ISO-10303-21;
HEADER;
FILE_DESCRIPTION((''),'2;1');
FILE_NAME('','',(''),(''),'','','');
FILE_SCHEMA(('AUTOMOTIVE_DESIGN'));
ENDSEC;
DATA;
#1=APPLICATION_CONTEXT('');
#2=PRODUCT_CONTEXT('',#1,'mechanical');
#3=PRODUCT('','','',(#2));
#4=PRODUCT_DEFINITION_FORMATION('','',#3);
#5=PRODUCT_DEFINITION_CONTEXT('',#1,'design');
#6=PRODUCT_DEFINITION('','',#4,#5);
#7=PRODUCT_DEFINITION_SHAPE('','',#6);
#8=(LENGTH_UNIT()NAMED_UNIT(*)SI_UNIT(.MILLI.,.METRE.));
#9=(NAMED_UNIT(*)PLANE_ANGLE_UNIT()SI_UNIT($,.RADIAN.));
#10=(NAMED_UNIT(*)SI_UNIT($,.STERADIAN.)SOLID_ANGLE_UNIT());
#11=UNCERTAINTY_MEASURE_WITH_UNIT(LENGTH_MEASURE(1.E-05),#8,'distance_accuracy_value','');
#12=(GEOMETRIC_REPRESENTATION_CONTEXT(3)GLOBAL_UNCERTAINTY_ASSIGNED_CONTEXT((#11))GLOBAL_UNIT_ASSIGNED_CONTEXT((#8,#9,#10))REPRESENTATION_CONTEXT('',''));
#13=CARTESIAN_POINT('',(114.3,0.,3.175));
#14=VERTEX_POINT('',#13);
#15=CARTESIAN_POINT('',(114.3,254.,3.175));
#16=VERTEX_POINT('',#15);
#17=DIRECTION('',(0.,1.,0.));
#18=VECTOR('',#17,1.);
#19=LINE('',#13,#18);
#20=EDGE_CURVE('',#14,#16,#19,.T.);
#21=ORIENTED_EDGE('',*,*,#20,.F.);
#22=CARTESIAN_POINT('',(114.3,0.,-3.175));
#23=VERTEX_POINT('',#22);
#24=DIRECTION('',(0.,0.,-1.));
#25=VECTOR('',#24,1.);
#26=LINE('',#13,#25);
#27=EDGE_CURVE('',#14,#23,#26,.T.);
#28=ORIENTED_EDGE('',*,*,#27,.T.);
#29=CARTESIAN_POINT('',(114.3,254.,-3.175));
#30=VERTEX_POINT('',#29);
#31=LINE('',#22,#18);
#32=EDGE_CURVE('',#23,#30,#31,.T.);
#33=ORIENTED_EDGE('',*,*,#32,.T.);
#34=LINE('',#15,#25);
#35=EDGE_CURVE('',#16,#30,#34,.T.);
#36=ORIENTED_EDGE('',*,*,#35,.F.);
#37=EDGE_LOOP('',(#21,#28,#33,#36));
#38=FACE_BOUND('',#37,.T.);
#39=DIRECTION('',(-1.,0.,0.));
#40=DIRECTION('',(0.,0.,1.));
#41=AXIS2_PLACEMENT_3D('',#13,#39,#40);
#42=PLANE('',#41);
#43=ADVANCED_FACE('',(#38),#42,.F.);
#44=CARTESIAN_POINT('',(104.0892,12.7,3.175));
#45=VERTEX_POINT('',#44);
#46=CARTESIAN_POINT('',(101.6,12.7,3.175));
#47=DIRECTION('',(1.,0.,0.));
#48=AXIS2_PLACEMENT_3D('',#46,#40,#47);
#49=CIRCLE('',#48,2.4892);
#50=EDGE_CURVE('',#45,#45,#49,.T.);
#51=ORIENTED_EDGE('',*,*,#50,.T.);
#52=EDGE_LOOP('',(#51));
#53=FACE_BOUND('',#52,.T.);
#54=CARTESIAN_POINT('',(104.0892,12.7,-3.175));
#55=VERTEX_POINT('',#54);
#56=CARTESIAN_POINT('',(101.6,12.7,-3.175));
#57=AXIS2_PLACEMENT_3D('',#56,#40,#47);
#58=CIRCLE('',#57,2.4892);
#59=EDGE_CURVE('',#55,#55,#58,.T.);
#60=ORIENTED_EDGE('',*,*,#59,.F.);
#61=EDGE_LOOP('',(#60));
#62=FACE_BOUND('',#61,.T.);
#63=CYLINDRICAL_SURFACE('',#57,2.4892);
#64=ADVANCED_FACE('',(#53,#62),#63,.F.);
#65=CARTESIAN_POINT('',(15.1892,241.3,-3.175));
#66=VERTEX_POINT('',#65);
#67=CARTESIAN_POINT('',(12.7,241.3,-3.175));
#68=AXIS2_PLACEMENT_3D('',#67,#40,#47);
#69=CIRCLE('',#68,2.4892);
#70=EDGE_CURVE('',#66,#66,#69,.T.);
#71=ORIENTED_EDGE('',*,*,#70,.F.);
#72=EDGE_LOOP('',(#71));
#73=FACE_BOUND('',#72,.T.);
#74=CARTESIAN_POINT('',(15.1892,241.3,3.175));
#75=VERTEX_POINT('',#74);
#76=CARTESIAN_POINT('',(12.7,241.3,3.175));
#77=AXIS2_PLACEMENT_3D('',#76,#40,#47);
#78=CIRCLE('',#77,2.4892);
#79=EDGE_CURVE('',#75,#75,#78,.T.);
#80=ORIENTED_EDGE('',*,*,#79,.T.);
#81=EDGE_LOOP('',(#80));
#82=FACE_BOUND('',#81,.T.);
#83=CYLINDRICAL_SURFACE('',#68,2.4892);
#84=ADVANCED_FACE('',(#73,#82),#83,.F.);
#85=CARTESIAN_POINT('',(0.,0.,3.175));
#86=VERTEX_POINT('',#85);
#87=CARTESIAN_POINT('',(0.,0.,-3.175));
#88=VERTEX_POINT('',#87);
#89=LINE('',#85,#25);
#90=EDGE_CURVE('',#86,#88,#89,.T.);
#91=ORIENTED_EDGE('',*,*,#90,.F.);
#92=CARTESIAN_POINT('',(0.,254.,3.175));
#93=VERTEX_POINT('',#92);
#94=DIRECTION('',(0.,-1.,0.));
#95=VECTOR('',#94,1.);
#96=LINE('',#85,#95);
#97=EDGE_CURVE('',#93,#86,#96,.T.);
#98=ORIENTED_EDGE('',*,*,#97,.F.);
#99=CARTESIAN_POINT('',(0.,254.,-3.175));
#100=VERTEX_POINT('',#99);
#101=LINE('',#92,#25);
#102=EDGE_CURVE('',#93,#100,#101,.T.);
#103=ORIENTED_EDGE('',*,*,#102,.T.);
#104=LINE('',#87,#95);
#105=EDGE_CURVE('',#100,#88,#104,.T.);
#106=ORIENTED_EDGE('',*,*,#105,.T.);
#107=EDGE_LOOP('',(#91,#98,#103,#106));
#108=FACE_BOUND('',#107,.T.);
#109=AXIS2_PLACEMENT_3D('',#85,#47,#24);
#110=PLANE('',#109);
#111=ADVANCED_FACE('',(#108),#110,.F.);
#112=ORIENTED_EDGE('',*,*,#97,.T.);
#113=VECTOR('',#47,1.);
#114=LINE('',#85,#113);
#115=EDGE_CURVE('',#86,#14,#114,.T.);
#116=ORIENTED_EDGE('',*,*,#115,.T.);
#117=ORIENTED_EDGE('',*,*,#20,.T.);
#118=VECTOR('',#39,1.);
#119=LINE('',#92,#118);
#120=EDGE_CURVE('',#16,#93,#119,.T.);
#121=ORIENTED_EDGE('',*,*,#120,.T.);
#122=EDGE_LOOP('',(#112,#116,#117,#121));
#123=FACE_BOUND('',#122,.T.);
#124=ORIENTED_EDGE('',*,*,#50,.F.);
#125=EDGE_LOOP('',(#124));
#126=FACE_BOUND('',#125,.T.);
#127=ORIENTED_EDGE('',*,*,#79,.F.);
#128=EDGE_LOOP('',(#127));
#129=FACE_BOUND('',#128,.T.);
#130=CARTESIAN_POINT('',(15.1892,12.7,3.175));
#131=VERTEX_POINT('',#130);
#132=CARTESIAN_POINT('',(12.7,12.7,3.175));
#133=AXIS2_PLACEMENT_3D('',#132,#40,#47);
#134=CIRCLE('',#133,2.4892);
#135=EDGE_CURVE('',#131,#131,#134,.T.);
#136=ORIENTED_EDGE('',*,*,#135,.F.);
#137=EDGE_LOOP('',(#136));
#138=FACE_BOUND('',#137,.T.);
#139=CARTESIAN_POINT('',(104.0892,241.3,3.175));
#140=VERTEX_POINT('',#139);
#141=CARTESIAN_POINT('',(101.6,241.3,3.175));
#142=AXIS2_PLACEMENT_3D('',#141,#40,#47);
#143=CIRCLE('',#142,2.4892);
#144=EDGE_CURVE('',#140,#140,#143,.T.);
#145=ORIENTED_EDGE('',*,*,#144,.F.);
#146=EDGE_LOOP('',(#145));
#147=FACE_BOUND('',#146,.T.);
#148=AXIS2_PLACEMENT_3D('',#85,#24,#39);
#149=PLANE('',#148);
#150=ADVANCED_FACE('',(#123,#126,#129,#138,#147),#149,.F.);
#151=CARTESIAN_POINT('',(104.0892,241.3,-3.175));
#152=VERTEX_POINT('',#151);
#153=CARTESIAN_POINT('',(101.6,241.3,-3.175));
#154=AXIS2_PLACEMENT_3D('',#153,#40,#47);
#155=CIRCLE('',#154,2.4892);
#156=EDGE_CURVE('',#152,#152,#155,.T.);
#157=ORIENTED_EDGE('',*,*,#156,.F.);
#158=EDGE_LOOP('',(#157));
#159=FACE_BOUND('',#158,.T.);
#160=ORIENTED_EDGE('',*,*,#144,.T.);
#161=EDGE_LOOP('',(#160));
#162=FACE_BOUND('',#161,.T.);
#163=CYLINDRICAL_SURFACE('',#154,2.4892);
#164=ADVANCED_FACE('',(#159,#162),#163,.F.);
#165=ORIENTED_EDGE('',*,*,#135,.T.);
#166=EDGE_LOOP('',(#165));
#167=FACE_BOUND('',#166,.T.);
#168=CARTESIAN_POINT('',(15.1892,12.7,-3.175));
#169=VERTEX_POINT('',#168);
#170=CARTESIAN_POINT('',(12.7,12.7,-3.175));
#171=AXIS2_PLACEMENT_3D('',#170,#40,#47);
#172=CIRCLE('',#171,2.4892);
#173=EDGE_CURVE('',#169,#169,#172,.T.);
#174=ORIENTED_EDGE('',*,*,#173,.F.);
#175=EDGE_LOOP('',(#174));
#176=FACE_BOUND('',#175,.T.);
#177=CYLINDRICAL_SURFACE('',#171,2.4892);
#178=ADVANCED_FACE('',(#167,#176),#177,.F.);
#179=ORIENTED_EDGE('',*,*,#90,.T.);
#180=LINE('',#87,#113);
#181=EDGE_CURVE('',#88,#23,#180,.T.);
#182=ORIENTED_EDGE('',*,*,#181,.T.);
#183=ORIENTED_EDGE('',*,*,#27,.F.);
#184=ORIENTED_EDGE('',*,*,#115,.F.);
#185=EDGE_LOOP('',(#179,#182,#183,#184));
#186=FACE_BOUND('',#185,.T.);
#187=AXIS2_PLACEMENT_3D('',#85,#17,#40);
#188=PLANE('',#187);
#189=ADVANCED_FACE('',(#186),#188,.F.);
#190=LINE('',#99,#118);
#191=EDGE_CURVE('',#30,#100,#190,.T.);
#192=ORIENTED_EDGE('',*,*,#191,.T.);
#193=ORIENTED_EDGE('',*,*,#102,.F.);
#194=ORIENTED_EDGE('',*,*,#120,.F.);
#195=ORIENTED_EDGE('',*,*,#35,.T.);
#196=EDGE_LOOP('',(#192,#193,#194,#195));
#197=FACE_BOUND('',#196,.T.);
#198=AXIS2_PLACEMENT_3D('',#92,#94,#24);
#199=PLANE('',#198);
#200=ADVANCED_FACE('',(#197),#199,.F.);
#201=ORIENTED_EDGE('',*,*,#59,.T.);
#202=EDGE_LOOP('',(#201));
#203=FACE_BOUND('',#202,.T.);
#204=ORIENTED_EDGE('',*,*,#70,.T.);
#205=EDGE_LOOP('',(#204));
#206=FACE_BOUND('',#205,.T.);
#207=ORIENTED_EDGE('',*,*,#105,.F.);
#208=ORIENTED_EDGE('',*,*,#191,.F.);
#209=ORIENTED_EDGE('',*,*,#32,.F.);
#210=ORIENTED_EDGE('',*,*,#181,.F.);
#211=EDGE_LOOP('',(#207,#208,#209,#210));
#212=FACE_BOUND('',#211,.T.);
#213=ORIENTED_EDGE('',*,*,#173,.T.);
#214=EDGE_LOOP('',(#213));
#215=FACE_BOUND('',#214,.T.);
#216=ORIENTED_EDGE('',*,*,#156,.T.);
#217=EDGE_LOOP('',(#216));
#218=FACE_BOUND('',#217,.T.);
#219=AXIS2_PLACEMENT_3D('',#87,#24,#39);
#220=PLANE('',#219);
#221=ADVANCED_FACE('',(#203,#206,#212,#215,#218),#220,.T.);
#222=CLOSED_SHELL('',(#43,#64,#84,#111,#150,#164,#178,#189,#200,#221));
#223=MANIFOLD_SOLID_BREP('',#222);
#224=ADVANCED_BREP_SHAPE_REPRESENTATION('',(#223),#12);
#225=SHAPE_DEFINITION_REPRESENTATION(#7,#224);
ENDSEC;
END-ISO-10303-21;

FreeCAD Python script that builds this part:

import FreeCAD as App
import Part
import Sketcher
from FreeCAD import Vector
Q = App.Units.Quantity


def add_polygon(sketch, points):
    """Adds a closed chain of lines whose ends are joined by coincident constraints."""
    first, n = sketch.GeometryCount, len(points)
    for a, b in zip(points, points[1:] + points[:1]):
        sketch.addGeometry(Part.LineSegment(App.Vector(*a, 0), App.Vector(*b, 0)), False)
    for i in range(n):
        sketch.addConstraint(Sketcher.Constraint("Coincident", first + i, 2, first + (i + 1) % n, 1))

doc = App.newDocument("Part")
body = doc.addObject("PartDesign::Body", "Body")

# Sketch on XY plane
sketch1 = body.newObject("Sketcher::SketchObject", "Sketch")
sketch1.AttachmentSupport = (doc.getObject("XY_Plane"), [""])
sketch1.MapMode = "FlatFace"
add_polygon(sketch1, [(0, 254), (0, 0), (114.3, 0), (114.3, 254)])  # lines 0-3
sketch1.addConstraint(Sketcher.Constraint("Vertical", 0))
sketch1.addConstraint(Sketcher.Constraint("Horizontal", 1))
sketch1.addConstraint(Sketcher.Constraint("Vertical", 2))
sketch1.addConstraint(Sketcher.Constraint("Horizontal", 3))
sketch1.addConstraint(Sketcher.Constraint("Coincident", 0, 2, -1, 1))
sketch1.addConstraint(Sketcher.Constraint("DistanceY", 0, 2, 0, 1, Q("10 in")))
sketch1.addConstraint(Sketcher.Constraint("DistanceX", 1, 1, 1, 2, Q("4.5 in")))
pad1 = body.newObject("PartDesign::Pad", "Pad")
pad1.Profile = sketch1
pad1.Length = Q("0.25 in")
pad1.Midplane = True

# Sketch on XY plane
sketch2 = body.newObject("Sketcher::SketchObject", "Sketch001")
sketch2.AttachmentSupport = (doc.getObject("XY_Plane"), [""])
sketch2.MapMode = "FlatFace"
sketch2.AttachmentOffset = App.Placement(Vector(0, 0, 0.125 * 25.4), App.Rotation())
sketch2.addGeometry(Part.Circle(Vector(12.7, 241.3, 0), Vector(0, 0, 1), 2.4892), False)
sketch2.addGeometry(Part.Circle(Vector(12.7, 12.7, 0), Vector(0, 0, 1), 2.4892), False)
sketch2.addGeometry(Part.Circle(Vector(101.6, 241.3, 0), Vector(0, 0, 1), 2.4892), False)
sketch2.addGeometry(Part.Circle(Vector(101.6, 12.7, 0), Vector(0, 0, 1), 2.4892), False)
sketch2.addConstraint(Sketcher.Constraint("Equal", 0, 1))
sketch2.addConstraint(Sketcher.Constraint("Equal", 1, 2))
sketch2.addConstraint(Sketcher.Constraint("Equal", 2, 3))
sketch2.addConstraint(Sketcher.Constraint("Horizontal", 0, 3, 2, 3))
sketch2.addConstraint(Sketcher.Constraint("Horizontal", 1, 3, 3, 3))
sketch2.addConstraint(Sketcher.Constraint("Vertical", 0, 3, 1, 3))
sketch2.addConstraint(Sketcher.Constraint("Vertical", 2, 3, 3, 3))
sketch2.addConstraint(Sketcher.Constraint("Diameter", 0, Q("0.196 in")))
sketch2.addConstraint(Sketcher.Constraint("DistanceX", -1, 1, 2, 3, Q("4 in")))
sketch2.addConstraint(Sketcher.Constraint("DistanceY", 1, 3, 0, 3, Q("9 in")))
sketch2.addConstraint(Sketcher.Constraint("DistanceX", -1, 1, 0, 3, Q("0.5 in")))
sketch2.addConstraint(Sketcher.Constraint("DistanceY", -1, 1, 0, 3, Q("9.5 in")))
pocket1 = body.newObject("PartDesign::Pocket", "Pocket")
pocket1.Profile = sketch2
pocket1.Type = "ThroughAll"

doc.recompute()
